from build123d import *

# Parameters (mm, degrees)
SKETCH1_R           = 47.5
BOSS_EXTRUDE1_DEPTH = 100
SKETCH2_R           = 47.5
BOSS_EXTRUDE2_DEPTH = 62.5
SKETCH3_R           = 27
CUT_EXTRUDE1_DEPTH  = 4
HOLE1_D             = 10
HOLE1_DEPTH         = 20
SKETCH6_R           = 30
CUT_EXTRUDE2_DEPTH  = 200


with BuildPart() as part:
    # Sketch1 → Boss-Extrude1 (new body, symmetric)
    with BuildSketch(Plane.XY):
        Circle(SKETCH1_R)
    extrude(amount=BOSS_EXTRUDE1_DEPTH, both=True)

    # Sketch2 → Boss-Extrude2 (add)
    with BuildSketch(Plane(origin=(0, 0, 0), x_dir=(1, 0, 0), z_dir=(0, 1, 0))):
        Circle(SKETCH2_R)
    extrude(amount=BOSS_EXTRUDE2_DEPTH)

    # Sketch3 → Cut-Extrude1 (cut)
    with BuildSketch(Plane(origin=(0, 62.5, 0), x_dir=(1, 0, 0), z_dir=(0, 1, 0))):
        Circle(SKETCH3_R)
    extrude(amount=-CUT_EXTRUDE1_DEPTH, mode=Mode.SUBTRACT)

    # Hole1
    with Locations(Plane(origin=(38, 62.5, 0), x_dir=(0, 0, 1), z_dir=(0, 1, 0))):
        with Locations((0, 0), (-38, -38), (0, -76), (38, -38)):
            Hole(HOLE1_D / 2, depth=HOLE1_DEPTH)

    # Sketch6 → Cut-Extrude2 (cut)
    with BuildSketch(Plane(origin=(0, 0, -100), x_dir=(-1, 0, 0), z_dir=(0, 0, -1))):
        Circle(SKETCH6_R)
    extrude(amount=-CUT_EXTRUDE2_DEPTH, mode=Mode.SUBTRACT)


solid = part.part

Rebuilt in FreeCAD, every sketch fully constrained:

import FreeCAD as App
import Part
import Sketcher

V = App.Vector

doc = App.newDocument("Part")
body = doc.addObject("PartDesign::Body", "Body")

sketch1 = body.newObject("Sketcher::SketchObject", "Sketch")
sketch1.AttachmentSupport = (doc.getObject("XY_Plane"), [""])
sketch1.MapMode = "FlatFace"
sketch1.addGeometry(Part.Circle(V(0, 0, 0), V(0, 0, 1), 48), False)
sketch1.addConstraint(Sketcher.Constraint("Coincident", 0, 3, -1, 1))
sketch1.addConstraint(Sketcher.Constraint("Diameter", 0, 95.0))
pad1 = body.newObject("PartDesign::Pad", "Pad")
pad1.Profile = sketch1
pad1.Length = 200
pad1.Midplane = True

sketch2 = body.newObject("Sketcher::SketchObject", "Sketch001")
sketch2.AttachmentSupport = (doc.getObject("XZ_Plane"), [""])
sketch2.MapMode = "FlatFace"
sketch2.addGeometry(Part.Circle(V(0, 0, 0), V(0, 0, 1), 48), False)
sketch2.addConstraint(Sketcher.Constraint("Coincident", 0, 3, -1, 1))
sketch2.addConstraint(Sketcher.Constraint("Diameter", 0, 95.0))
pad2 = body.newObject("PartDesign::Pad", "Pad001")
pad2.Profile = sketch2
pad2.Length = 62.5
pad2.Reversed = True

sketch3 = body.newObject("Sketcher::SketchObject", "Sketch002")
sketch3.AttachmentSupport = (doc.getObject("XZ_Plane"), [""])
sketch3.MapMode = "FlatFace"
sketch3.AttachmentOffset = App.Placement(V(0, 0, -62.5), App.Rotation())
sketch3.addGeometry(Part.Circle(V(0, 0, 0), V(0, 0, 1), 27), False)
sketch3.addConstraint(Sketcher.Constraint("Coincident", 0, 3, -1, 1))
sketch3.addConstraint(Sketcher.Constraint("Diameter", 0, 54.0))
pocket1 = body.newObject("PartDesign::Pocket", "Pocket")
pocket1.Profile = sketch3
pocket1.Length = 4
pocket1.Reversed = True

sketch4 = body.newObject("Sketcher::SketchObject", "Sketch003")
sketch4.AttachmentSupport = (doc.getObject("XZ_Plane"), [""])
sketch4.MapMode = "FlatFace"
sketch4.AttachmentOffset = App.Placement(V(0, 0, -62.5), App.Rotation())
sketch4.addGeometry(Part.Circle(V(38, 0, 0), V(0, 0, 1), 5), False)
sketch4.addGeometry(Part.Circle(V(0, -38, 0), V(0, 0, 1), 5), False)
sketch4.addGeometry(Part.Circle(V(-38, 0, 0), V(0, 0, 1), 5), False)
sketch4.addGeometry(Part.Circle(V(0, 38, 0), V(0, 0, 1), 5), False)
sketch4.addConstraint(Sketcher.Constraint("Equal", 0, 1))
sketch4.addConstraint(Sketcher.Constraint("Equal", 1, 2))
sketch4.addConstraint(Sketcher.Constraint("Equal", 2, 3))
sketch4.addConstraint(Sketcher.Constraint("Symmetric", 0, 3, 2, 3, -1, 1))
sketch4.addConstraint(Sketcher.Constraint("Symmetric", 1, 3, 3, 3, -1, 1))
sketch4.addConstraint(Sketcher.Constraint("PointOnObject", 0, 3, -1))
sketch4.addConstraint(Sketcher.Constraint("PointOnObject", 1, 3, -2))
sketch4.addConstraint(Sketcher.Constraint("Diameter", 0, 10.0))
sketch4.addConstraint(Sketcher.Constraint("DistanceX", -1, 1, 0, 3, 38.0))
sketch4.addConstraint(Sketcher.Constraint("DistanceY", 1, 3, -1, 1, 38.0))
doc.recompute()
hole = body.newObject("PartDesign::Hole", "Hole")
hole.Profile = sketch4
hole.ThreadType = "None"
hole.Diameter = 10
hole.DepthType = "Dimension"
hole.Depth = 20
hole.DrillPoint = "Flat"
hole.Reversed = True

sketch5 = body.newObject("Sketcher::SketchObject", "Sketch004")
sketch5.AttachmentSupport = (doc.getObject("XY_Plane"), [""])
sketch5.MapMode = "FlatFace"
sketch5.AttachmentOffset = App.Placement(V(0, 0, -100), App.Rotation())
sketch5.addGeometry(Part.Circle(V(0, 0, 0), V(0, 0, 1), 30), False)
sketch5.addConstraint(Sketcher.Constraint("Coincident", 0, 3, -1, 1))
sketch5.addConstraint(Sketcher.Constraint("Diameter", 0, 60.0))
pocket2 = body.newObject("PartDesign::Pocket", "Pocket001")
pocket2.Profile = sketch5
pocket2.Length = 200
pocket2.Reversed = True

doc.recompute()
